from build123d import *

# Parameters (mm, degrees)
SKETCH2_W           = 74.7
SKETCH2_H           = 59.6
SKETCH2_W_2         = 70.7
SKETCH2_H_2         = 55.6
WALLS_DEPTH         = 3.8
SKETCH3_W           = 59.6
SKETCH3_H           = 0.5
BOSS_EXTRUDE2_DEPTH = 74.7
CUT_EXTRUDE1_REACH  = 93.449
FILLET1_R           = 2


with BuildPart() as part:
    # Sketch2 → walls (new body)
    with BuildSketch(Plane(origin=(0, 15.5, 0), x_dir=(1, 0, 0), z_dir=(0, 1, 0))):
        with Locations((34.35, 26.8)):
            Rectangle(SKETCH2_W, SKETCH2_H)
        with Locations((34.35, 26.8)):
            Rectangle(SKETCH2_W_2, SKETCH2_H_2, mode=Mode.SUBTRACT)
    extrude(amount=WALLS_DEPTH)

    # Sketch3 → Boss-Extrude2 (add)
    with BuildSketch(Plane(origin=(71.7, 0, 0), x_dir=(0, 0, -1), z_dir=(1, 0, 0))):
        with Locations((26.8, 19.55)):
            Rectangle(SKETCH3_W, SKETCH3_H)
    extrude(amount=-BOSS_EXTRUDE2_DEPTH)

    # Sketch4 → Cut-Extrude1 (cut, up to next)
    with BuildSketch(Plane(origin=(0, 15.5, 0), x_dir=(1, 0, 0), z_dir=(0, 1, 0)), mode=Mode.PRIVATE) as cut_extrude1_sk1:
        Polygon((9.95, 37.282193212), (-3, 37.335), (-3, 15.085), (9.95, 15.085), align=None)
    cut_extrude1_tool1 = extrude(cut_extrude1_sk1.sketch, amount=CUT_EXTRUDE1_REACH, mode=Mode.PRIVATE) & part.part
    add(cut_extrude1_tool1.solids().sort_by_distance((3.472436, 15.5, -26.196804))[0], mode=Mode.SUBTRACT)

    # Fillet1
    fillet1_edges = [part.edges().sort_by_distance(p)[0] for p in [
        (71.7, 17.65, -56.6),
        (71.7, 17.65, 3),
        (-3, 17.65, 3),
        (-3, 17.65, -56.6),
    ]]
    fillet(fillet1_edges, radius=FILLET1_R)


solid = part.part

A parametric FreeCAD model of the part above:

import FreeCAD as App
import Part
import Sketcher

V = App.Vector
Q = App.Units.Quantity


def edges_at(feature, points):
    """Names of the edges that pass closest to the given points."""
    edges = feature.Shape.Edges
    near = lambda p: min(range(len(edges)), key=lambda i: edges[i].distToShape(Part.Vertex(*p))[0])
    return sorted({f"Edge{near(p) + 1}" for p in points})

doc = App.newDocument("Part")
body = doc.addObject("PartDesign::Body", "Body")

sketch1 = doc.addObject("Sketcher::SketchObject", "Sketch")
body.addObject(sketch1)
sketch1.AttachmentSupport = (doc.XZ_Plane, [""])
sketch1.MapMode = "FlatFace"
sketch1.AttachmentOffset = App.Placement(V(0, 0, -15.5), App.Rotation())
sketch1.addGeometry(Part.LineSegment(V(-3, -57, 0), V(-3, 3, 0)), False)
sketch1.addGeometry(Part.LineSegment(V(-3, 3, 0), V(72, 3, 0)), False)
sketch1.addGeometry(Part.LineSegment(V(72, 3, 0), V(72, -57, 0)), False)
sketch1.addGeometry(Part.LineSegment(V(72, -57, 0), V(-3, -57, 0)), False)
sketch1.addGeometry(Part.LineSegment(V(70, 1, 0), V(-1, 1, 0)), False)
sketch1.addGeometry(Part.LineSegment(V(-1, 1, 0), V(-1, -55, 0)), False)
sketch1.addGeometry(Part.LineSegment(V(-1, -55, 0), V(70, -55, 0)), False)
sketch1.addGeometry(Part.LineSegment(V(70, -55, 0), V(70, 1, 0)), False)
sketch1.addConstraint(Sketcher.Constraint("Coincident", 0, 2, 1, 1))
sketch1.addConstraint(Sketcher.Constraint("Coincident", 1, 2, 2, 1))
sketch1.addConstraint(Sketcher.Constraint("Coincident", 2, 2, 3, 1))
sketch1.addConstraint(Sketcher.Constraint("Coincident", 3, 2, 0, 1))
sketch1.addConstraint(Sketcher.Constraint("Coincident", 4, 2, 5, 1))
sketch1.addConstraint(Sketcher.Constraint("Coincident", 5, 2, 6, 1))
sketch1.addConstraint(Sketcher.Constraint("Coincident", 6, 2, 7, 1))
sketch1.addConstraint(Sketcher.Constraint("Coincident", 7, 2, 4, 1))
sketch1.addConstraint(Sketcher.Constraint("Vertical", 0))
sketch1.addConstraint(Sketcher.Constraint("Horizontal", 1))
sketch1.addConstraint(Sketcher.Constraint("Vertical", 2))
sketch1.addConstraint(Sketcher.Constraint("Horizontal", 3))
sketch1.addConstraint(Sketcher.Constraint("Horizontal", 4))
sketch1.addConstraint(Sketcher.Constraint("Vertical", 5))
sketch1.addConstraint(Sketcher.Constraint("Horizontal", 6))
sketch1.addConstraint(Sketcher.Constraint("Vertical", 7))
sketch1.addConstraint(Sketcher.Constraint("DistanceX", 1, 1, 1, 2, Q("74.7 mm")))
sketch1.addConstraint(Sketcher.Constraint("DistanceX", 4, 2, 4, 1, Q("70.7 mm")))
sketch1.addConstraint(Sketcher.Constraint("DistanceY", 0, 1, 0, 2, Q("59.6 mm")))
sketch1.addConstraint(Sketcher.Constraint("DistanceY", 5, 2, 5, 1, Q("55.6 mm")))
sketch1.addConstraint(Sketcher.Constraint("DistanceX", 0, 2, -1, 1, Q("3 mm")))
sketch1.addConstraint(Sketcher.Constraint("DistanceY", -1, 1, 0, 2, Q("3 mm")))
sketch1.addConstraint(Sketcher.Constraint("DistanceX", 4, 2, -1, 1, Q("1 mm")))
sketch1.addConstraint(Sketcher.Constraint("DistanceY", -1, 1, 4, 2, Q("1 mm")))
pad1 = doc.addObject("PartDesign::Pad", "Pad")
body.addObject(pad1)
pad1.Profile = sketch1
pad1.Length = 3.8
pad1.Reversed = True

sketch2 = doc.addObject("Sketcher::SketchObject", "Sketch001")
body.addObject(sketch2)
sketch2.AttachmentSupport = (doc.YZ_Plane, [""])
sketch2.MapMode = "FlatFace"
sketch2.AttachmentOffset = App.Placement(V(0, 0, 71.7), App.Rotation())
sketch2.addGeometry(Part.LineSegment(V(19.8, 3, 0), V(19.3, 3, 0)), False)
sketch2.addGeometry(Part.LineSegment(V(19.3, 3, 0), V(19.3, -56.6, 0)), False)
sketch2.addGeometry(Part.LineSegment(V(19.3, -56.6, 0), V(19.8, -56.6, 0)), False)
sketch2.addGeometry(Part.LineSegment(V(19.8, -56.6, 0), V(19.8, 3, 0)), False)
sketch2.addConstraint(Sketcher.Constraint("Coincident", 0, 2, 1, 1))
sketch2.addConstraint(Sketcher.Constraint("Coincident", 1, 2, 2, 1))
sketch2.addConstraint(Sketcher.Constraint("Coincident", 2, 2, 3, 1))
sketch2.addConstraint(Sketcher.Constraint("Coincident", 3, 2, 0, 1))
sketch2.addConstraint(Sketcher.Constraint("Horizontal", 0))
sketch2.addConstraint(Sketcher.Constraint("Vertical", 1))
sketch2.addConstraint(Sketcher.Constraint("Horizontal", 2))
sketch2.addConstraint(Sketcher.Constraint("Vertical", 3))
sketch2.addConstraint(Sketcher.Constraint("DistanceX", 0, 2, 0, 1, Q("0.5 mm")))
sketch2.addConstraint(Sketcher.Constraint("DistanceY", 1, 2, 1, 1, Q("59.6 mm")))
sketch2.addConstraint(Sketcher.Constraint("DistanceY", -1, 1, 0, 2, Q("3 mm")))
sketch2.addConstraint(Sketcher.Constraint("DistanceX", -1, 1, 0, 2, Q("19.3 mm")))
pad2 = doc.addObject("PartDesign::Pad", "Pad001")
body.addObject(pad2)
pad2.Profile = sketch2
pad2.Length = 74.7
pad2.Reversed = True

sketch3 = doc.addObject("Sketcher::SketchObject", "Sketch002")
body.addObject(sketch3)
sketch3.AttachmentSupport = (doc.XZ_Plane, [""])
sketch3.MapMode = "FlatFace"
sketch3.AttachmentOffset = App.Placement(V(0, 0, -15.5), App.Rotation())
sketch3.addGeometry(Part.LineSegment(V(10, -37, 0), V(-3, -37, 0)), False)
sketch3.addGeometry(Part.LineSegment(V(-3, -37, 0), V(-3, -15, 0)), False)
sketch3.addGeometry(Part.LineSegment(V(-3, -15, 0), V(10, -15, 0)), False)
sketch3.addGeometry(Part.LineSegment(V(10, -15, 0), V(10, -37, 0)), False)
sketch3.addConstraint(Sketcher.Constraint("Coincident", 0, 2, 1, 1))
sketch3.addConstraint(Sketcher.Constraint("Coincident", 1, 2, 2, 1))
sketch3.addConstraint(Sketcher.Constraint("Coincident", 2, 2, 3, 1))
sketch3.addConstraint(Sketcher.Constraint("Coincident", 3, 2, 0, 1))
sketch3.addConstraint(Sketcher.Constraint("Vertical", 1))
sketch3.addConstraint(Sketcher.Constraint("Horizontal", 2))
sketch3.addConstraint(Sketcher.Constraint("Vertical", 3))
sketch3.addConstraint(Sketcher.Constraint("DistanceX", 0, 2, -1, 1, Q("3 mm")))
sketch3.addConstraint(Sketcher.Constraint("DistanceX", 2, 1, 2, 2, Q("12.95 mm")))
sketch3.addConstraint(Sketcher.Constraint("DistanceY", 1, 1, 1, 2, Q("22.25 mm")))
sketch3.addConstraint(Sketcher.Constraint("DistanceY", 0, 2, -1, 1, Q("37.335 mm")))
sketch3.addConstraint(Sketcher.Constraint("DistanceY", 3, 2, 3, 1, Q("22.197193 mm")))
pocket1 = doc.addObject("PartDesign::Pocket", "Pocket")
body.addObject(pocket1)
pocket1.Profile = sketch3
pocket1.Length = 4.3
doc.recompute()

fillet = doc.addObject("PartDesign::Fillet", "Fillet")
body.addObject(fillet)
fillet.Base = (pocket1, edges_at(pocket1, [
    (71.7, 17.65, -56.6),
    (71.7, 17.65, 3),
    (-3, 17.65, 3),
    (-3, 17.65, -56.6),
]))
fillet.Radius = 2

doc.recompute()
